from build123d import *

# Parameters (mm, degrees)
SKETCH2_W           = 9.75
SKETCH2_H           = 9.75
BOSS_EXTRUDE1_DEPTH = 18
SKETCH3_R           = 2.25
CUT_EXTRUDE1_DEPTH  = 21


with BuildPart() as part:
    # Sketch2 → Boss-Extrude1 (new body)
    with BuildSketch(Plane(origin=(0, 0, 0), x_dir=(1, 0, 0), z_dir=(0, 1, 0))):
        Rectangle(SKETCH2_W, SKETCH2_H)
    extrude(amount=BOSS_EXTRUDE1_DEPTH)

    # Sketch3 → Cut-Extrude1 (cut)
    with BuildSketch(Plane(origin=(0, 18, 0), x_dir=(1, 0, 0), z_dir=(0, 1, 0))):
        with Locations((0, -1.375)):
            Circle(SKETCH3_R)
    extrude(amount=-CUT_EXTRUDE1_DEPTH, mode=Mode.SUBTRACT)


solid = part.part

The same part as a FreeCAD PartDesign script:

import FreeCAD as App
import Part
import Sketcher

doc = App.newDocument("Part")
body = doc.addObject("PartDesign::Body", "Body")

# Sketch on XZ plane
sketch1 = body.newObject("Sketcher::SketchObject", "Sketch")
sketch1.AttachmentSupport = (doc.getObject("XZ_Plane"), [""])
sketch1.MapMode = "FlatFace"
sketch1.addGeometry([
    Part.LineSegment(App.Vector(-4.875, -4.875, 0), App.Vector(-4.875, 4.875, 0)),
    Part.LineSegment(App.Vector(-4.875, 4.875, 0), App.Vector(4.875, 4.875, 0)),
    Part.LineSegment(App.Vector(4.875, 4.875, 0), App.Vector(4.875, -4.875, 0)),
    Part.LineSegment(App.Vector(4.875, -4.875, 0), App.Vector(-4.875, -4.875, 0)),
], False)
sketch1.addConstraint([
    Sketcher.Constraint("Coincident", 0, 2, 1, 1),
    Sketcher.Constraint("Coincident", 1, 2, 2, 1),
    Sketcher.Constraint("Coincident", 2, 2, 3, 1),
    Sketcher.Constraint("Coincident", 3, 2, 0, 1),
    Sketcher.Constraint("Vertical", 0),
    Sketcher.Constraint("Horizontal", 1),
    Sketcher.Constraint("Vertical", 2),
    Sketcher.Constraint("Horizontal", 3),
    Sketcher.Constraint("Symmetric", 0, 2, 2, 2, -1, 1),
    Sketcher.Constraint("Equal", 3, 0),
    Sketcher.Constraint("DistanceX", 1, 1, 1, 2, 9.75),
])
pad1 = body.newObject("PartDesign::Pad", "Pad")
pad1.Profile = sketch1
pad1.Length = 18
pad1.Reversed = True

# Sketch on XZ plane
sketch2 = body.newObject("Sketcher::SketchObject", "Sketch001")
sketch2.AttachmentSupport = (doc.getObject("XZ_Plane"), [""])
sketch2.MapMode = "FlatFace"
sketch2.AttachmentOffset = App.Placement(App.Vector(0, 0, -18), App.Rotation())
sketch2.addGeometry(Part.Circle(App.Vector(0, 1.375, 0), App.Vector(0, 0, 1), 2.25), False)
sketch2.addConstraint([
    Sketcher.Constraint("PointOnObject", 0, 3, -2),
    Sketcher.Constraint("Diameter", 0, 4.5),
    Sketcher.Constraint("DistanceY", -1, 1, 0, 3, 1.375),
])
pocket1 = body.newObject("PartDesign::Pocket", "Pocket")
pocket1.Profile = sketch2
pocket1.Length = 21
pocket1.Reversed = True

doc.recompute()
